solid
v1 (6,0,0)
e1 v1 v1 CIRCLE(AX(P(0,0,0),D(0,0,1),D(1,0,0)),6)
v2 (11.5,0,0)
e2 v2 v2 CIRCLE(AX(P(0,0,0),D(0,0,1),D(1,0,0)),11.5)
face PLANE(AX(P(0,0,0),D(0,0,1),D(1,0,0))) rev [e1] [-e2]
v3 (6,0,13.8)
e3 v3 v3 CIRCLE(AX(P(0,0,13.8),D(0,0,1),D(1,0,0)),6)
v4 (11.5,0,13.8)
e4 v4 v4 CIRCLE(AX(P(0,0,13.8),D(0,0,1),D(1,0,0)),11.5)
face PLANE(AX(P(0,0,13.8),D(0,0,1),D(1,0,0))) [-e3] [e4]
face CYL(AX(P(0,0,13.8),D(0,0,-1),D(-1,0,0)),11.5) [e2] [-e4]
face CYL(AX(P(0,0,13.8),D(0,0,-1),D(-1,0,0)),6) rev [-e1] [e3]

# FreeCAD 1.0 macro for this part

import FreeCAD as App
import Part
import Sketcher
Q = App.Units.Quantity

doc = App.newDocument("Part")
params = doc.addObject("Spreadsheet::Sheet", "Params")
for row, (alias, value) in enumerate([
    ("sketch1_diameter", "23 mm"),
    ("sketch1_diameter2", "12 mm"),
    ("pad1_length", "13.8 mm"),
], start=1):
    params.set(f"A{row}", alias)
    params.set(f"B{row}", "=" + value)
    params.setAlias(f"B{row}", alias)

body = doc.addObject("PartDesign::Body", "Body")

# Sketch on XY plane
sketch1 = body.newObject("Sketcher::SketchObject", "Sketch")
sketch1.AttachmentSupport = (doc.getObject("XY_Plane"), [""])
sketch1.MapMode = "FlatFace"
sketch1.addGeometry([
    Part.Circle(App.Vector(0, 0, 0), App.Vector(0, 0, 1), 12),
    Part.Circle(App.Vector(0, 0, 0), App.Vector(0, 0, 1), 6),
], False)
sketch1.addConstraint([
    Sketcher.Constraint("Coincident", 0, 3, -1, 1),
    Sketcher.Constraint("Coincident", 1, 3, -1, 1),
    Sketcher.Constraint("Diameter", 0, Q("23 mm")),
    Sketcher.Constraint("Diameter", 1, Q("12 mm")),
])
sketch1.setExpression("Constraints[2]", "Params.sketch1_diameter")
sketch1.setExpression("Constraints[3]", "Params.sketch1_diameter2")
pad1 = body.newObject("PartDesign::Pad", "Pad")
pad1.Profile = sketch1
pad1.setExpression("Length", "Params.pad1_length")

doc.recompute()
